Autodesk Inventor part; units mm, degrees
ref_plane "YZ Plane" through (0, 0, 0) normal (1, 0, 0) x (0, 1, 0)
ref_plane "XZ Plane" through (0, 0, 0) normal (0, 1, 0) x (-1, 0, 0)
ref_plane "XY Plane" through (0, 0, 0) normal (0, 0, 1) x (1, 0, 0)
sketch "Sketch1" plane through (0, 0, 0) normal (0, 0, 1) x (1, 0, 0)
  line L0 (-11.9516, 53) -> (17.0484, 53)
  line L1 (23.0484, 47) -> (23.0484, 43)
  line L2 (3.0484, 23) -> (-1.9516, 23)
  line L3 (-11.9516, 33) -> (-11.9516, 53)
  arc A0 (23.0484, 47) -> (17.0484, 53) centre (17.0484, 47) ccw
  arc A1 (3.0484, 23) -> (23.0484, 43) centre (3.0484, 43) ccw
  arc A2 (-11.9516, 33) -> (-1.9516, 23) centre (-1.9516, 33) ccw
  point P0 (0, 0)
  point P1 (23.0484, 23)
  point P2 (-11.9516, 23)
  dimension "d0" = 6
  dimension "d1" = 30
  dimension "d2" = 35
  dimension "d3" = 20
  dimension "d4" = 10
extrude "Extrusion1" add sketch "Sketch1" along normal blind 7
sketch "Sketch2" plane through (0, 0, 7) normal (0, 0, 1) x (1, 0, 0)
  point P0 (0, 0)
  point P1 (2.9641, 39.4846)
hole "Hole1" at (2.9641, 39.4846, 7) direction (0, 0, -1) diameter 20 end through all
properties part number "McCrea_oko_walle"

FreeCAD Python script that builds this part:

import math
import FreeCAD as App
import Part
import Sketcher

doc = App.newDocument("Part")
params = doc.addObject("Spreadsheet::Sheet", "Params")
for row, (alias, value) in enumerate([
    ("sketch1_radius", "10 mm"),
    ("sketch1_radius2", "20 mm"),
    ("sketch1_radius3", "6 mm"),
    ("sketch1_height", "20 mm"),
    ("sketch1_width", "29 mm"),
    ("pad1_length", "7 mm"),
    ("sketch2_diameter", "20 mm"),
    ("hole_diameter", "20 mm"),
], start=1):
    params.set(f"A{row}", alias)
    params.set(f"B{row}", "=" + value)
    params.setAlias(f"B{row}", alias)

body = doc.addObject("PartDesign::Body", "Body")

sketch1 = body.newObject("Sketcher::SketchObject", "Sketch")
sketch1.AttachmentSupport = (doc.getObject("XY_Plane"), [""])
sketch1.MapMode = "FlatFace"
sketch1.addGeometry([
    Part.LineSegment(App.Vector(17.0484, 53, 0), App.Vector(-11.9516, 53, 0)),
    Part.LineSegment(App.Vector(-11.9516, 53, 0), App.Vector(-11.9516, 33, 0)),
    Part.ArcOfCircle(Part.Circle(App.Vector(-1.9516, 33, 0), App.Vector(0, 0, 1), 10), math.radians(180), math.radians(270)),
    Part.LineSegment(App.Vector(-1.9516, 23, 0), App.Vector(3.0484, 23, 0)),
    Part.ArcOfCircle(Part.Circle(App.Vector(3.0484, 43, 0), App.Vector(0, 0, 1), 20), math.radians(-90), math.radians(0)),
    Part.LineSegment(App.Vector(23.0484, 43, 0), App.Vector(23.0484, 47, 0)),
    Part.ArcOfCircle(Part.Circle(App.Vector(17.0484, 47, 0), App.Vector(0, 0, 1), 6), math.radians(0), math.radians(90)),
], False)
sketch1.addConstraint([
    Sketcher.Constraint("Coincident", 0, 2, 1, 1),
    Sketcher.Constraint("Tangent", 1, 2, 2, 1),
    Sketcher.Constraint("Tangent", 2, 2, 3, 1),
    Sketcher.Constraint("Tangent", 3, 2, 4, 1),
    Sketcher.Constraint("Tangent", 4, 2, 5, 1),
    Sketcher.Constraint("Tangent", 5, 2, 6, 1),
    Sketcher.Constraint("Tangent", 6, 2, 0, 1),
    Sketcher.Constraint("Horizontal", 0),
    Sketcher.Constraint("Vertical", 1),
    Sketcher.Constraint("Horizontal", 3),
    Sketcher.Constraint("Vertical", 5),
    Sketcher.Constraint("Radius", 2, 10.0),
    Sketcher.Constraint("Radius", 4, 20.0),
    Sketcher.Constraint("Radius", 6, 6.0),
    Sketcher.Constraint("DistanceY", 1, 2, 1, 1, 20.0),
    Sketcher.Constraint("DistanceX", 0, 2, 0, 1, 29.0),
    Sketcher.Constraint("DistanceY", -1, 1, 2, 3, 33.0),
    Sketcher.Constraint("DistanceX", 2, 3, -1, 1, 1.9516),
])
sketch1.setExpression("Constraints[11]", "Params.sketch1_radius")
sketch1.setExpression("Constraints[12]", "Params.sketch1_radius2")
sketch1.setExpression("Constraints[13]", "Params.sketch1_radius3")
sketch1.setExpression("Constraints[14]", "Params.sketch1_height")
sketch1.setExpression("Constraints[15]", "Params.sketch1_width")
pad1 = body.newObject("PartDesign::Pad", "Pad")
pad1.Profile = sketch1
pad1.setExpression("Length", "Params.pad1_length")

sketch2 = body.newObject("Sketcher::SketchObject", "Sketch001")
sketch2.AttachmentSupport = (doc.getObject("XY_Plane"), [""])
sketch2.MapMode = "FlatFace"
sketch2.AttachmentOffset = App.Placement(App.Vector(0, 0, 7), App.Rotation())
sketch2.addGeometry(Part.Circle(App.Vector(2.9641, 39.4846, 0), App.Vector(0, 0, 1), 10), False)
sketch2.addConstraint([
    Sketcher.Constraint("Diameter", 0, 20.0),
    Sketcher.Constraint("DistanceX", -1, 1, 0, 3, 2.964),
    Sketcher.Constraint("DistanceY", -1, 1, 0, 3, 39.4846),
])
sketch2.setExpression("Constraints[0]", "Params.sketch2_diameter")
doc.recompute()
hole = body.newObject("PartDesign::Hole", "Hole")
hole.Profile = sketch2
hole.ThreadType = "None"
hole.setExpression("Diameter", "Params.hole_diameter")
hole.DepthType = "ThroughAll"

doc.recompute()
